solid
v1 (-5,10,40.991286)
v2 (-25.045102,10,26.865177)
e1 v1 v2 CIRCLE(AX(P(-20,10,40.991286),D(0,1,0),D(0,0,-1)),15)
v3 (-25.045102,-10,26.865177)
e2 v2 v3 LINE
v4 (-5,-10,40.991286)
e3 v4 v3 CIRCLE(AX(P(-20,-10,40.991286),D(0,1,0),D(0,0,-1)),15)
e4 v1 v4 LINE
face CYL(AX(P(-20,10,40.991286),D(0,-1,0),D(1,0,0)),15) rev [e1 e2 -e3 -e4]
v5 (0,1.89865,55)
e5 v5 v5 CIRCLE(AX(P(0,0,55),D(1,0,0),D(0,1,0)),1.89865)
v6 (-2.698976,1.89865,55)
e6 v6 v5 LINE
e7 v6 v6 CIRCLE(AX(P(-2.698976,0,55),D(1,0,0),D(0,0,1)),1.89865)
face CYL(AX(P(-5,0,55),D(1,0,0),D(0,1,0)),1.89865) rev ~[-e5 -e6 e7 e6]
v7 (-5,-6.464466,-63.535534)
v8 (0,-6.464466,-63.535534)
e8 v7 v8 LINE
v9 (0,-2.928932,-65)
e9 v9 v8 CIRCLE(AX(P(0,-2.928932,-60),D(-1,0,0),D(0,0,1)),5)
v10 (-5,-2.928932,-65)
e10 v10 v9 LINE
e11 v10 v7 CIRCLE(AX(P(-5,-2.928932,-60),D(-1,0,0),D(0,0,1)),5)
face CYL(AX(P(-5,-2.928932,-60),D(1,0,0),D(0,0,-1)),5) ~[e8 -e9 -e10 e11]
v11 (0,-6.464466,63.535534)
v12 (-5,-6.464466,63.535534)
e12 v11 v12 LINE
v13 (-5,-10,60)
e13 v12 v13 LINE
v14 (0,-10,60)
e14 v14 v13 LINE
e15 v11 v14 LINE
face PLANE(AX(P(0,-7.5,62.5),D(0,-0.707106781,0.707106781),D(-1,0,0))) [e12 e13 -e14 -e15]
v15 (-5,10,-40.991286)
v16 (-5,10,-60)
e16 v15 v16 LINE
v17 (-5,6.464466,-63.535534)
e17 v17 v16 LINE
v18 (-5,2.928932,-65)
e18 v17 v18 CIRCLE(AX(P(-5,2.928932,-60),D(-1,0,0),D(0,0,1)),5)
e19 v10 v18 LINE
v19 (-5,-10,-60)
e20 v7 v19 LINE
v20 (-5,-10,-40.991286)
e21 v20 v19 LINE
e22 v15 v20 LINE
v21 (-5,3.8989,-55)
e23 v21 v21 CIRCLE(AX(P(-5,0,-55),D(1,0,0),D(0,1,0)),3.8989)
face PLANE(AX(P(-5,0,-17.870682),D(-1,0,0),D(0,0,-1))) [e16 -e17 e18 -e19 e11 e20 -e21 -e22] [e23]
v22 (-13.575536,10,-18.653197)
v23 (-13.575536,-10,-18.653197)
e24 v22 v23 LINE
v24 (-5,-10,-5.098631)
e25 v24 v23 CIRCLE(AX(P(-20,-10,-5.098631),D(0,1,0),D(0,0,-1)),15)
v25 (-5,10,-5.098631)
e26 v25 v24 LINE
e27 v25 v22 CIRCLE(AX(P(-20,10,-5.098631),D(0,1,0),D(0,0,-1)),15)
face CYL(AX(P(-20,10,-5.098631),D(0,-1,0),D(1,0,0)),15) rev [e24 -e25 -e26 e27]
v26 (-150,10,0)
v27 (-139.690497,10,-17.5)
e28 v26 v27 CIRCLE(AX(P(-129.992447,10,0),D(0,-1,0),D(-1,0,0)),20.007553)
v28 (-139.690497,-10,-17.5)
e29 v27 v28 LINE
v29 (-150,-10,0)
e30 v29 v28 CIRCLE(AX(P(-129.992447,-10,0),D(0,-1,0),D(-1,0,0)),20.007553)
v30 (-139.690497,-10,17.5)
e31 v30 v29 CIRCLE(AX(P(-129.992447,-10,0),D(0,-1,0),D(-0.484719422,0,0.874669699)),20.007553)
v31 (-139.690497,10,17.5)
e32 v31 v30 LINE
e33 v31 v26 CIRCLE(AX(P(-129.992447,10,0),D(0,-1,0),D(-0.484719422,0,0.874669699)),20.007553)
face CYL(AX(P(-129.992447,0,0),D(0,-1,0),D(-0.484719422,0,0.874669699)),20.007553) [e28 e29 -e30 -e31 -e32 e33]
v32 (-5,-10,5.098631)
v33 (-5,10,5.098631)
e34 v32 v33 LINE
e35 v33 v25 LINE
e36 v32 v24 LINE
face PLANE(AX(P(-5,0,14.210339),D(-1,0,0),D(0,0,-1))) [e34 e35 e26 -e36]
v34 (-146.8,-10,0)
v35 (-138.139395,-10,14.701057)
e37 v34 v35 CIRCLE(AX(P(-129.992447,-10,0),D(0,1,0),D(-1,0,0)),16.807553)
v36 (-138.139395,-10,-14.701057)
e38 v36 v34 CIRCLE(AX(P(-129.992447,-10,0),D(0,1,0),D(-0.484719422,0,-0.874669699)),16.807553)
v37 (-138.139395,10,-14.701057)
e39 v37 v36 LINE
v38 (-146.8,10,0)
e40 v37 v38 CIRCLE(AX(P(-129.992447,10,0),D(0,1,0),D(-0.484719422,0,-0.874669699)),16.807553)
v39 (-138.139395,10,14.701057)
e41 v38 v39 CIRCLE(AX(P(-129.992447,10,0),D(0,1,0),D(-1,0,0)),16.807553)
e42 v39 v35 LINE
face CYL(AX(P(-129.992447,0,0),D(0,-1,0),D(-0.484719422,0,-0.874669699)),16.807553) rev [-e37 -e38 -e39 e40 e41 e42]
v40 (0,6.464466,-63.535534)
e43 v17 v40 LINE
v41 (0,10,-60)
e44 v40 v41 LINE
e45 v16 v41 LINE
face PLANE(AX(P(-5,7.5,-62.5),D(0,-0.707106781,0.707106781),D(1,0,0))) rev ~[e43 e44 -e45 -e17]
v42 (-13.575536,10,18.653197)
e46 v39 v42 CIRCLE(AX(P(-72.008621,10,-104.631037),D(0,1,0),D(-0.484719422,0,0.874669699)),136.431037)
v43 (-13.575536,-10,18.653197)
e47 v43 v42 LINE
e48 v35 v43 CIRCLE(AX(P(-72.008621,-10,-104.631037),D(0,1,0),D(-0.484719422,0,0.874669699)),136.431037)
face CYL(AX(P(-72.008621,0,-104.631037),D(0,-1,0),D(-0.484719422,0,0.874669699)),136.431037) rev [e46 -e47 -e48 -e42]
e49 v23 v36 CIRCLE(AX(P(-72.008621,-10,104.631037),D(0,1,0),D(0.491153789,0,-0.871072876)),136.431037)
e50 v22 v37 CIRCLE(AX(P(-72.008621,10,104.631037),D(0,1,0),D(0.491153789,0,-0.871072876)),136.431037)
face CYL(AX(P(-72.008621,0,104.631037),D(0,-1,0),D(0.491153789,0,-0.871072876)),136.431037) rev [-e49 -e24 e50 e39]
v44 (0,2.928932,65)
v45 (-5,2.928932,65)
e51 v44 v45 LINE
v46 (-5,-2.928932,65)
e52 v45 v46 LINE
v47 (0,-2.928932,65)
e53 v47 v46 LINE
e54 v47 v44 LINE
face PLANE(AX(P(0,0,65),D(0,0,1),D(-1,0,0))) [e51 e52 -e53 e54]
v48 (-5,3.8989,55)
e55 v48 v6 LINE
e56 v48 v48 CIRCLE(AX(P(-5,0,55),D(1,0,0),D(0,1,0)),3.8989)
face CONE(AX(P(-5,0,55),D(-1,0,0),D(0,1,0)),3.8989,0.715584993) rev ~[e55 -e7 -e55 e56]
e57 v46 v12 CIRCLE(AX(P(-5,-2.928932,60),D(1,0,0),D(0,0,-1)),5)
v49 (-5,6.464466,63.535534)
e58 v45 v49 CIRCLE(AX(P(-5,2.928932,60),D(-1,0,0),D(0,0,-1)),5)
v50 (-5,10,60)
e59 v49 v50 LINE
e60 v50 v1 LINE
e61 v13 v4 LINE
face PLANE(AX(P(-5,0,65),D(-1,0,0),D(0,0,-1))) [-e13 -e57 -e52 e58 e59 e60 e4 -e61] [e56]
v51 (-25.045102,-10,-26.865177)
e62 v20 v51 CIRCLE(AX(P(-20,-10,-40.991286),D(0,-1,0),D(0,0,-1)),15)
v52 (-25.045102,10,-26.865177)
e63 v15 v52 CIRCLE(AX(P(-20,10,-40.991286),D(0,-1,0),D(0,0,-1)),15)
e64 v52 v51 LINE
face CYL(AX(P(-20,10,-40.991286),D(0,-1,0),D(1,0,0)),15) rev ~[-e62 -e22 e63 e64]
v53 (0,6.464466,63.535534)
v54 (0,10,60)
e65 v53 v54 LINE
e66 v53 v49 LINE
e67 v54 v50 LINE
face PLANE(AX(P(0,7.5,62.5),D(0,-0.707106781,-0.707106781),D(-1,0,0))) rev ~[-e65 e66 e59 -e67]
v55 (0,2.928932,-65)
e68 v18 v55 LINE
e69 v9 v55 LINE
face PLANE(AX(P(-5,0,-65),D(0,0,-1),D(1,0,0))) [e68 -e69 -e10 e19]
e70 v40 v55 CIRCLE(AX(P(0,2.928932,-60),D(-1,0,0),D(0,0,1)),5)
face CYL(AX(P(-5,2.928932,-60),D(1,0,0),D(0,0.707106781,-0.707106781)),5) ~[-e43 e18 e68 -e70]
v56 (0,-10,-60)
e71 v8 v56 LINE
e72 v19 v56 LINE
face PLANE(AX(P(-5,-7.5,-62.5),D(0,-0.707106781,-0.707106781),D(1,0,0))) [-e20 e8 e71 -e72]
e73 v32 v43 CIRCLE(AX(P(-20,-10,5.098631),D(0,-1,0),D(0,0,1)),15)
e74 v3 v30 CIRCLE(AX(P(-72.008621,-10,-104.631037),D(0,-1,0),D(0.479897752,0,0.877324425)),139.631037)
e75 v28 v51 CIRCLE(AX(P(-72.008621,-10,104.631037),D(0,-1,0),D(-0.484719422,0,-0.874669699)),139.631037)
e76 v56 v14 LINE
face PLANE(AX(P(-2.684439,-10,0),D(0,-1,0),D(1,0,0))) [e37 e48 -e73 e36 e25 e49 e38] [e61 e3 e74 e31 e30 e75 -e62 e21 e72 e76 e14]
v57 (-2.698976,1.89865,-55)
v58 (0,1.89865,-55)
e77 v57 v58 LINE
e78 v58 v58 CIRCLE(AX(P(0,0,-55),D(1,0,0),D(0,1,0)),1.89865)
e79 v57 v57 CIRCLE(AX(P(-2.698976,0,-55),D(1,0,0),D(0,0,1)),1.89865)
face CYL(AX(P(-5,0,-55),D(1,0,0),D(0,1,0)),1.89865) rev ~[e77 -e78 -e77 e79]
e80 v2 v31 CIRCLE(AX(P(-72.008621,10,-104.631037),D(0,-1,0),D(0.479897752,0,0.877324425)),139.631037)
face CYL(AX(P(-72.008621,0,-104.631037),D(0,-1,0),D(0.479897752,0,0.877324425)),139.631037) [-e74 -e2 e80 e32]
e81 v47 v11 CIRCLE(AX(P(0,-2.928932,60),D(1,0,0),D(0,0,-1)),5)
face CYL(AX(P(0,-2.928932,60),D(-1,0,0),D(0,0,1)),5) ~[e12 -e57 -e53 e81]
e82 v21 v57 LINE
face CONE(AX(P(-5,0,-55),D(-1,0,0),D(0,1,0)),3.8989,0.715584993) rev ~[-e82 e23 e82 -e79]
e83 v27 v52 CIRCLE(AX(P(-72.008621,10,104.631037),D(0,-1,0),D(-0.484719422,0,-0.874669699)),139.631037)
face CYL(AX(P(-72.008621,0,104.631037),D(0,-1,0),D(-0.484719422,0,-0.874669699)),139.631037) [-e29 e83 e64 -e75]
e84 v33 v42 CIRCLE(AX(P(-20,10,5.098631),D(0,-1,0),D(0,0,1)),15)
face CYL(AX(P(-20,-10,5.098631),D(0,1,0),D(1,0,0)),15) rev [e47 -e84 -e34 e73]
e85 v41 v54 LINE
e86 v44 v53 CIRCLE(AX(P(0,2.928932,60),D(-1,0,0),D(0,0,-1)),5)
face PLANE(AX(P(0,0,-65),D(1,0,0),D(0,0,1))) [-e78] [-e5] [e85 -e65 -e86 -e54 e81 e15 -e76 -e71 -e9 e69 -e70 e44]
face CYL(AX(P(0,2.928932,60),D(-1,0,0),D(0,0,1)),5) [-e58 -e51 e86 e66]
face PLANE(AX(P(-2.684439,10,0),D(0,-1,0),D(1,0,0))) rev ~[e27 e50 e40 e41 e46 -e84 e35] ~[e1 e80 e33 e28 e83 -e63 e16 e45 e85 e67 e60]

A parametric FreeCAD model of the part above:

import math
import FreeCAD as App
import Part
import Sketcher
from FreeCAD import Vector


def edges_at(feature, points):
    """Names of the edges that pass closest to the given points."""
    edges = feature.Shape.Edges
    near = lambda p: min(range(len(edges)), key=lambda i: edges[i].distToShape(Part.Vertex(*p))[0])
    return sorted({f"Edge{near(p) + 1}" for p in points})

doc = App.newDocument("Part")
params = doc.addObject("Spreadsheet::Sheet", "Params")
for row, (alias, value) in enumerate([
    ("sketch1_width", "5 mm"),
    ("sketch1_height", "130 mm"),
    ("pad1_length", "20 mm"),
    ("hole_diameter", "3.7973 mm"),
    ("hole_csink_diameter", "7.7978 mm"),
    ("chamfer_size", "5 mm"),
    ("fillet_radius", "5 mm"),
    ("fillet2_radius", "15 mm"),
], start=1):
    params.set(f"A{row}", alias)
    params.set(f"B{row}", "=" + value)
    params.setAlias(f"B{row}", alias)

body = doc.addObject("PartDesign::Body", "Body")

sketch1 = doc.addObject("Sketcher::SketchObject", "Sketch")
body.addObject(sketch1)
sketch1.AttachmentSupport = (doc.XZ_Plane, [""])
sketch1.MapMode = "FlatFace"
sketch1.addGeometry([
    Part.LineSegment(Vector(0, 65, 0), Vector(-5, 65, 0)),
    Part.LineSegment(Vector(-5, 65, 0), Vector(-5, 18, 0)),
    Part.ArcOfCircle(Part.Circle(Vector(-72, -105, 0), Vector(0, 0, 1), 140), math.radians(61), math.radians(119)),
    Part.ArcOfCircle(Part.Circle(Vector(-130, 0, 0), Vector(0, 0, 1), 20), math.radians(119), math.radians(180)),
    Part.ArcOfCircle(Part.Circle(Vector(-130, 0, 0), Vector(0, 0, 1), 20), math.radians(180), math.radians(241)),
    Part.ArcOfCircle(Part.Circle(Vector(-72, 105, 0), Vector(0, 0, 1), 140), math.radians(-119), math.radians(-61)),
    Part.LineSegment(Vector(-5, -18, 0), Vector(-5, -65, 0)),
    Part.LineSegment(Vector(-5, -65, 0), Vector(0, -65, 0)),
    Part.LineSegment(Vector(0, -65, 0), Vector(0, 65, 0)),
    Part.LineSegment(Vector(-5, 14, 0), Vector(-5, -14, 0)),
    Part.ArcOfCircle(Part.Circle(Vector(-72, 105, 0), Vector(0, 0, 1), 136), math.radians(-119), math.radians(-61)),
    Part.ArcOfCircle(Part.Circle(Vector(-130, 0, 0), Vector(0, 0, 1), 17), math.radians(180), math.radians(241)),
    Part.ArcOfCircle(Part.Circle(Vector(-130, 0, 0), Vector(0, 0, 1), 17), math.radians(119), math.radians(180)),
    Part.ArcOfCircle(Part.Circle(Vector(-72, -105, 0), Vector(0, 0, 1), 136), math.radians(61), math.radians(119)),
], False)
sketch1.addConstraint([
    Sketcher.Constraint("Coincident", 0, 2, 1, 1),
    Sketcher.Constraint("Coincident", 1, 2, 2, 1),
    Sketcher.Constraint("Tangent", 2, 2, 3, 1),
    Sketcher.Constraint("Tangent", 3, 2, 4, 1),
    Sketcher.Constraint("Tangent", 4, 2, 5, 1),
    Sketcher.Constraint("Coincident", 5, 2, 6, 1),
    Sketcher.Constraint("Coincident", 6, 2, 7, 1),
    Sketcher.Constraint("Coincident", 7, 2, 8, 1),
    Sketcher.Constraint("Coincident", 8, 2, 0, 1),
    Sketcher.Constraint("Coincident", 9, 2, 10, 2),
    Sketcher.Constraint("Tangent", 10, 1, 11, 2),
    Sketcher.Constraint("Tangent", 11, 1, 12, 2),
    Sketcher.Constraint("Tangent", 12, 1, 13, 2),
    Sketcher.Constraint("Coincident", 13, 1, 9, 1),
    Sketcher.Constraint("Horizontal", 0),
    Sketcher.Constraint("Vertical", 1),
    Sketcher.Constraint("Vertical", 6),
    Sketcher.Constraint("Horizontal", 7),
    Sketcher.Constraint("Vertical", 8),
    Sketcher.Constraint("Vertical", 9),
    Sketcher.Constraint("Coincident", 10, 3, 5, 3),
    Sketcher.Constraint("Coincident", 11, 3, 3, 3),
    Sketcher.Constraint("Coincident", 13, 3, 2, 3),
    Sketcher.Constraint("Equal", 3, 4),
    Sketcher.Constraint("Equal", 2, 5),
    Sketcher.Constraint("Equal", 11, 12),
    Sketcher.Constraint("Symmetric", 7, 2, 8, 2, -1, 1),
    Sketcher.Constraint("Symmetric", 2, 3, 5, 3, -1),
    Sketcher.Constraint("PointOnObject", 3, 2, -1),
    Sketcher.Constraint("PointOnObject", 11, 1, -1),
    Sketcher.Constraint("Vertical", 1, 2, 5, 2),
    Sketcher.Constraint("Vertical", 6, 2, 9, 2),
    Sketcher.Constraint("DistanceX", 0, 2, 0, 1, 5.0),
    Sketcher.Constraint("DistanceY", 8, 1, 8, 2, 130.0),
    Sketcher.Constraint("DistanceX", 3, 2, -1, 1, 150.0),
    Sketcher.Constraint("DistanceY", -1, 1, 2, 2, 17.5),
    Sketcher.Constraint("DistanceX", 11, 1, -1, 1, 146.8),
    Sketcher.Constraint("Radius", 2, 139.631037),
    Sketcher.Constraint("Radius", 3, 20.007553),
])
sketch1.setExpression("Constraints[32]", "Params.sketch1_width")
sketch1.setExpression("Constraints[33]", "Params.sketch1_height")
pad1 = doc.addObject("PartDesign::Pad", "Pad")
body.addObject(pad1)
pad1.Profile = sketch1
pad1.setExpression("Length", "Params.pad1_length")
pad1.Midplane = True

sketch2 = doc.addObject("Sketcher::SketchObject", "Sketch001")
body.addObject(sketch2)
sketch2.AttachmentSupport = (doc.YZ_Plane, [""])
sketch2.MapMode = "FlatFace"
sketch2.AttachmentOffset = App.Placement(Vector(0, 0, -5), App.Rotation())
sketch2.addGeometry([
    Part.Circle(Vector(0, 55, 0), Vector(0, 0, 1), 1.9),
    Part.Circle(Vector(0, -55, 0), Vector(0, 0, 1), 1.9),
], False)
sketch2.addConstraint([
    Sketcher.Constraint("Equal", 0, 1),
    Sketcher.Constraint("Symmetric", 0, 3, 1, 3, -1, 1),
    Sketcher.Constraint("PointOnObject", 0, 3, -2),
    Sketcher.Constraint("DistanceY", -1, 1, 0, 3, 55.0),
    Sketcher.Constraint("Diameter", 0, 3.7973),
])
doc.recompute()
hole = doc.addObject("PartDesign::Hole", "Hole")
body.addObject(hole)
hole.Profile = sketch2
hole.ThreadType = "None"
hole.setExpression("Diameter", "Params.hole_diameter")
hole.DepthType = "ThroughAll"
hole.HoleCutType = "Countersink"
hole.setExpression("HoleCutDiameter", "Params.hole_csink_diameter")
hole.HoleCutCountersinkAngle = 82
hole.Reversed = True
doc.recompute()

chamfer = doc.addObject("PartDesign::Chamfer", "Chamfer")
body.addObject(chamfer)
chamfer.Base = (hole, edges_at(hole, [
    (-2.5, -10, 65),
    (-2.5, 10, 65),
    (-2.5, -10, -65),
    (-2.5, 10, -65),
]))
chamfer.setExpression("Size", "Params.chamfer_size")
doc.recompute()

fillet = doc.addObject("PartDesign::Fillet", "Fillet")
body.addObject(fillet)
fillet.Base = (chamfer, edges_at(chamfer, [
    (-2.5, -5, -65),
    (-2.5, 5, -65),
    (-2.5, -5, 65),
    (-2.5, 5, 65),
]))
fillet.setExpression("Radius", "Params.fillet_radius")
doc.recompute()

fillet2 = doc.addObject("PartDesign::Fillet", "Fillet001")
body.addObject(fillet2)
fillet2.Base = (fillet, edges_at(fillet, [
    (-5, 0, 14.21),
    (-5, 0, 17.871),
    (-5, 0, -17.871),
    (-5, 0, -14.21),
]))
fillet2.setExpression("Radius", "Params.fillet2_radius")

doc.recompute()
